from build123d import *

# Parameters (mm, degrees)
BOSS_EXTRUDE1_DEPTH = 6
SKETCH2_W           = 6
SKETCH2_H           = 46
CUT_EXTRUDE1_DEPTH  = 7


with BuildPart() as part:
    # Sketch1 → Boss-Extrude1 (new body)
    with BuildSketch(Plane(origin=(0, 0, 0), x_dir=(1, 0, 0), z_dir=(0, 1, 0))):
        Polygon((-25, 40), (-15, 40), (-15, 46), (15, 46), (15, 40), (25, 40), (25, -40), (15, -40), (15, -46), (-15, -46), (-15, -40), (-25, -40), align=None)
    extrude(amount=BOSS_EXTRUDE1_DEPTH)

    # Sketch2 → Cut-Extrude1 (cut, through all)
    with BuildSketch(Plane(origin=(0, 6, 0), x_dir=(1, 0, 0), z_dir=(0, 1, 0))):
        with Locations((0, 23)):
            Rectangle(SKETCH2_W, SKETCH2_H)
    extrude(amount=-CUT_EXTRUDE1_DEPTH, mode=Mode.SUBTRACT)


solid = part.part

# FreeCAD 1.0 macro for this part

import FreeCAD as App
import Part
import Sketcher
from FreeCAD import Vector
Q = App.Units.Quantity


def add_polygon(sketch, points):
    """Adds a closed chain of lines whose ends are joined by coincident constraints."""
    first, n = sketch.GeometryCount, len(points)
    for a, b in zip(points, points[1:] + points[:1]):
        sketch.addGeometry(Part.LineSegment(App.Vector(*a, 0), App.Vector(*b, 0)), False)
    for i in range(n):
        sketch.addConstraint(Sketcher.Constraint("Coincident", first + i, 2, first + (i + 1) % n, 1))

doc = App.newDocument("Part")
params = doc.addObject("Spreadsheet::Sheet", "Params")
for row, (alias, value) in enumerate([
    ("sketch1_width", "10 mm"),
    ("sketch1_width2", "30 mm"),
    ("sketch1_height", "80 mm"),
    ("sketch1_height2", "6 mm"),
    ("pad1_length", "6 mm"),
    ("sketch2_width", "6 mm"),
    ("sketch2_height", "46 mm"),
], start=1):
    params.set(f"A{row}", alias)
    params.set(f"B{row}", "=" + value)
    params.setAlias(f"B{row}", alias)

body = doc.addObject("PartDesign::Body", "Body")

sketch1 = body.newObject("Sketcher::SketchObject", "Sketch")
sketch1.AttachmentSupport = (doc.getObject("XZ_Plane"), [""])
sketch1.MapMode = "FlatFace"
add_polygon(sketch1, [(-15, -40), (-25, -40), (-25, 40), (-15, 40), (-15, 46), (15, 46), (15, 40), (25, 40), (25, -40), (15, -40), (15, -46), (-15, -46)])
sketch1.addConstraint([
    Sketcher.Constraint("Horizontal", 0),
    Sketcher.Constraint("Vertical", 1),
    Sketcher.Constraint("Horizontal", 2),
    Sketcher.Constraint("Vertical", 3),
    Sketcher.Constraint("Horizontal", 4),
    Sketcher.Constraint("Vertical", 5),
    Sketcher.Constraint("Horizontal", 6),
    Sketcher.Constraint("Vertical", 7),
    Sketcher.Constraint("Horizontal", 8),
    Sketcher.Constraint("Vertical", 9),
    Sketcher.Constraint("Horizontal", 10),
    Sketcher.Constraint("Vertical", 11),
    Sketcher.Constraint("Symmetric", 0, 2, 6, 2, -1, 1),
    Sketcher.Constraint("Symmetric", 2, 2, 8, 2, -1, 1),
    Sketcher.Constraint("Symmetric", 4, 2, 10, 2, -1, 1),
    Sketcher.Constraint("Symmetric", 2, 2, 5, 2, -2),
    Sketcher.Constraint("DistanceX", 0, 2, 0, 1, Q("10 mm")),
    Sketcher.Constraint("DistanceX", 4, 1, 4, 2, Q("30 mm")),
    Sketcher.Constraint("DistanceY", 1, 1, 1, 2, Q("80 mm")),
    Sketcher.Constraint("DistanceY", 3, 1, 3, 2, Q("6 mm")),
])
sketch1.setExpression("Constraints[28]", "Params.sketch1_width")
sketch1.setExpression("Constraints[29]", "Params.sketch1_width2")
sketch1.setExpression("Constraints[30]", "Params.sketch1_height")
sketch1.setExpression("Constraints[31]", "Params.sketch1_height2")
pad1 = body.newObject("PartDesign::Pad", "Pad")
pad1.Profile = sketch1
pad1.setExpression("Length", "Params.pad1_length")
pad1.Reversed = True

sketch2 = body.newObject("Sketcher::SketchObject", "Sketch001")
sketch2.AttachmentSupport = (doc.getObject("XZ_Plane"), [""])
sketch2.MapMode = "FlatFace"
sketch2.AttachmentOffset = App.Placement(Vector(0, 0, -6), App.Rotation())
add_polygon(sketch2, [(-3, -46), (-3, 0), (3, 0), (3, -46)])
sketch2.addConstraint([
    Sketcher.Constraint("Vertical", 0),
    Sketcher.Constraint("Horizontal", 1),
    Sketcher.Constraint("Vertical", 2),
    Sketcher.Constraint("Horizontal", 3),
    Sketcher.Constraint("Symmetric", 0, 2, 1, 2, -1, 1),
    Sketcher.Constraint("DistanceX", 1, 1, 1, 2, Q("6 mm")),
    Sketcher.Constraint("DistanceY", 0, 1, 0, 2, Q("46 mm")),
])
sketch2.setExpression("Constraints[9]", "Params.sketch2_width")
sketch2.setExpression("Constraints[10]", "Params.sketch2_height")
pocket1 = body.newObject("PartDesign::Pocket", "Pocket")
pocket1.Profile = sketch2
pocket1.Type = "ThroughAll"
pocket1.Reversed = True

doc.recompute()
